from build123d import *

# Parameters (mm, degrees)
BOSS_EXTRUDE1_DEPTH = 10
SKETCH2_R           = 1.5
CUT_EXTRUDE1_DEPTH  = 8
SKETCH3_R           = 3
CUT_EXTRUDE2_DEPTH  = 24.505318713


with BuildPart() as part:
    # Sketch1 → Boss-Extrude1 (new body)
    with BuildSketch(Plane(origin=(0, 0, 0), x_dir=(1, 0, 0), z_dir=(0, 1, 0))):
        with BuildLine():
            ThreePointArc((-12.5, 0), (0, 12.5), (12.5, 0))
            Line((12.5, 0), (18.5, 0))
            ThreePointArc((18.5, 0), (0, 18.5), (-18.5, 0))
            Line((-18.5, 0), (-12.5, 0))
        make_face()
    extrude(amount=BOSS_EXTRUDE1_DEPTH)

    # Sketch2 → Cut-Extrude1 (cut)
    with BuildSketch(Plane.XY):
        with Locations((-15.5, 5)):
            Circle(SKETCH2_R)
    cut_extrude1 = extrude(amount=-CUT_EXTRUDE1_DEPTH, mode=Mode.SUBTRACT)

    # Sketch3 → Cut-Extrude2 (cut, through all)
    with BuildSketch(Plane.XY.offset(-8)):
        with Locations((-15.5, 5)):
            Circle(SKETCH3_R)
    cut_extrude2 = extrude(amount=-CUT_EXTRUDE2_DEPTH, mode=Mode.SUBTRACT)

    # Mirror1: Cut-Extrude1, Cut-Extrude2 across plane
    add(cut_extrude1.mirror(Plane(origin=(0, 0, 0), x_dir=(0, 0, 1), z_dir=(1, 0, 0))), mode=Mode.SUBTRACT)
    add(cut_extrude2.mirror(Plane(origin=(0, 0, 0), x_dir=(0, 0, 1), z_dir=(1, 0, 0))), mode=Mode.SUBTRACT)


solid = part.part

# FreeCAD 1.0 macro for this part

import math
import FreeCAD as App
import Part
import Sketcher

doc = App.newDocument("Part")
body = doc.addObject("PartDesign::Body", "Body")

sketch1 = body.newObject("Sketcher::SketchObject", "Sketch")
sketch1.AttachmentSupport = (doc.getObject("XZ_Plane"), [""])
sketch1.MapMode = "FlatFace"
sketch1.addGeometry([
    Part.ArcOfCircle(Part.Circle(App.Vector(0, 0, 0), App.Vector(0, 0, 1), 12), math.radians(180), math.radians(360)),
    Part.LineSegment(App.Vector(12, 0, 0), App.Vector(18, 0, 0)),
    Part.ArcOfCircle(Part.Circle(App.Vector(0, 0, 0), App.Vector(0, 0, 1), 18), math.radians(180), math.radians(360)),
    Part.LineSegment(App.Vector(-18, 0, 0), App.Vector(-12, 0, 0)),
], False)
sketch1.addConstraint([
    Sketcher.Constraint("Coincident", 0, 2, 1, 1),
    Sketcher.Constraint("Coincident", 1, 2, 2, 2),
    Sketcher.Constraint("Coincident", 2, 1, 3, 1),
    Sketcher.Constraint("Coincident", 3, 2, 0, 1),
    Sketcher.Constraint("Horizontal", 1),
    Sketcher.Constraint("Horizontal", 3),
    Sketcher.Constraint("Coincident", 0, 3, -1, 1),
    Sketcher.Constraint("Coincident", 2, 3, -1, 1),
    Sketcher.Constraint("PointOnObject", 0, 2, -1),
    Sketcher.Constraint("PointOnObject", 2, 1, -1),
    Sketcher.Constraint("Radius", 0, 12.5),
    Sketcher.Constraint("Radius", 2, 18.5),
])
pad1 = body.newObject("PartDesign::Pad", "Pad")
pad1.Profile = sketch1
pad1.Length = 10
pad1.Reversed = True

sketch2 = body.newObject("Sketcher::SketchObject", "Sketch001")
sketch2.AttachmentSupport = (doc.getObject("XY_Plane"), [""])
sketch2.MapMode = "FlatFace"
sketch2.addGeometry(Part.Circle(App.Vector(-15.5, 5, 0), App.Vector(0, 0, 1), 1.5), False)
sketch2.addConstraint([
    Sketcher.Constraint("Diameter", 0, 3.0),
    Sketcher.Constraint("DistanceY", -1, 1, 0, 3, 5.0),
    Sketcher.Constraint("DistanceX", 0, 3, -1, 1, 15.5),
])
pocket1 = body.newObject("PartDesign::Pocket", "Pocket")
pocket1.Profile = sketch2
pocket1.Length = 8

sketch3 = body.newObject("Sketcher::SketchObject", "Sketch002")
sketch3.AttachmentSupport = (doc.getObject("XY_Plane"), [""])
sketch3.MapMode = "FlatFace"
sketch3.AttachmentOffset = App.Placement(App.Vector(0, 0, -8), App.Rotation())
sketch3.addGeometry(Part.Circle(App.Vector(-15.5, 5, 0), App.Vector(0, 0, 1), 3), False)
sketch3.addConstraint([
    Sketcher.Constraint("Diameter", 0, 6.0),
    Sketcher.Constraint("DistanceY", -1, 1, 0, 3, 5.0),
    Sketcher.Constraint("DistanceX", 0, 3, -1, 1, 15.5),
])
pocket2 = body.newObject("PartDesign::Pocket", "Pocket001")
pocket2.Profile = sketch3
pocket2.Type = "ThroughAll"
doc.recompute()

mirrored = body.newObject("PartDesign::Mirrored", "Mirrored")
mirrored.Originals = [pocket1, pocket2]
mirrored.MirrorPlane = (doc.getObject("YZ_Plane"), [""])
body.Tip = mirrored

doc.recompute()
